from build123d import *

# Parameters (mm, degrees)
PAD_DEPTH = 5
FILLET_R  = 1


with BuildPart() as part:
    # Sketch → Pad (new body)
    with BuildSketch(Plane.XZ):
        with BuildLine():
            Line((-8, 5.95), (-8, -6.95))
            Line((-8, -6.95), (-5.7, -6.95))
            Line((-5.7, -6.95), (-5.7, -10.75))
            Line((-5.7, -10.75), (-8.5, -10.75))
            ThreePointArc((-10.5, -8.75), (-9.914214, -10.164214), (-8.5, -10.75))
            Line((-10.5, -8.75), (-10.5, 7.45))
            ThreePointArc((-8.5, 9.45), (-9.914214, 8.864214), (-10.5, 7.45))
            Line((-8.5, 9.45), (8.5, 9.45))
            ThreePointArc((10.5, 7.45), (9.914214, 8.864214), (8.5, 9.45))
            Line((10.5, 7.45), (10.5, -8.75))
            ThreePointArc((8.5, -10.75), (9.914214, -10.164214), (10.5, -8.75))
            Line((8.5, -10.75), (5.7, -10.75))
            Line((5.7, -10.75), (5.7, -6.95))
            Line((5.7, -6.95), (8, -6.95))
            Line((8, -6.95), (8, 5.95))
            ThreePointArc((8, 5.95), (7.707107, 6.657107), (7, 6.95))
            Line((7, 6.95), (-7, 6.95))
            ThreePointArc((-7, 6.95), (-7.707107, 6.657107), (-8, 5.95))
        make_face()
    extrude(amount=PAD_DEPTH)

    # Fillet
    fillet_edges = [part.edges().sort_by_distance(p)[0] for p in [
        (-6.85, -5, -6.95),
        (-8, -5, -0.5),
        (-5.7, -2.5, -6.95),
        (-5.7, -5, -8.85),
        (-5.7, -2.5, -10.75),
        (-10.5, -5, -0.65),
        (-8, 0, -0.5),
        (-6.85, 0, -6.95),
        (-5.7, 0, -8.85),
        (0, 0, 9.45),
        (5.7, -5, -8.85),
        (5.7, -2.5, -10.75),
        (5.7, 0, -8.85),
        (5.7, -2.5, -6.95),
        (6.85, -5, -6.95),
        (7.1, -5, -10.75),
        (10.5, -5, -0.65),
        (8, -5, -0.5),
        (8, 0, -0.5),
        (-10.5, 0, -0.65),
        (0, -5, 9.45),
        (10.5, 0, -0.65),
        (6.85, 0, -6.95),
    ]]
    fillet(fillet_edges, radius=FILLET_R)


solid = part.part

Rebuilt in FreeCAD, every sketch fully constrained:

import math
import FreeCAD as App
import Part
import Sketcher
from FreeCAD import Vector


def edges_at(feature, points):
    """Names of the edges that pass closest to the given points."""
    edges = feature.Shape.Edges
    near = lambda p: min(range(len(edges)), key=lambda i: edges[i].distToShape(Part.Vertex(*p))[0])
    return sorted({f"Edge{near(p) + 1}" for p in points})

doc = App.newDocument("Part")
body = doc.addObject("PartDesign::Body", "Body")

# Sketch on XZ plane
sketch1 = body.newObject("Sketcher::SketchObject", "Sketch")
sketch1.AttachmentSupport = (doc.getObject("XZ_Plane"), [""])
sketch1.MapMode = "FlatFace"
sketch1.addGeometry(Part.LineSegment(Vector(-8, -6.95, 0), Vector(-8, 5.95, 0)), False)
sketch1.addGeometry(Part.ArcOfCircle(Part.Circle(Vector(-7.000001, 5.950001, 0), Vector(0, 0, 1), 0.999999), math.radians(89.999957), math.radians(180.000043)), False)
sketch1.addGeometry(Part.LineSegment(Vector(-7, 6.95, 0), Vector(7, 6.95, 0)), False)
sketch1.addGeometry(Part.ArcOfCircle(Part.Circle(Vector(7.000001, 5.950001, 0), Vector(0, 0, 1), 0.999999), math.radians(-0.000043), math.radians(90.000043)), False)
sketch1.addGeometry(Part.LineSegment(Vector(8, 5.95, 0), Vector(8, -6.95, 0)), False)
sketch1.addGeometry(Part.LineSegment(Vector(8, -6.95, 0), Vector(5.7, -6.95, 0)), False)
sketch1.addGeometry(Part.LineSegment(Vector(5.7, -6.95, 0), Vector(5.7, -10.75, 0)), False)
sketch1.addGeometry(Part.LineSegment(Vector(5.7, -10.75, 0), Vector(8.5, -10.75, 0)), False)
sketch1.addGeometry(Part.ArcOfCircle(Part.Circle(Vector(8.500001, -8.750001, 0), Vector(0, 0, 1), 1.999999), math.radians(-90.000043), math.radians(0.000043)), False)
sketch1.addGeometry(Part.LineSegment(Vector(10.5, -8.75, 0), Vector(10.5, 7.45, 0)), False)
sketch1.addGeometry(Part.ArcOfCircle(Part.Circle(Vector(8.500001, 7.450001, 0), Vector(0, 0, 1), 1.999999), math.radians(-0.000043), math.radians(90.000043)), False)
sketch1.addGeometry(Part.LineSegment(Vector(8.5, 9.45, 0), Vector(-8.5, 9.45, 0)), False)
sketch1.addGeometry(Part.ArcOfCircle(Part.Circle(Vector(-8.500001, 7.450001, 0), Vector(0, 0, 1), 1.999999), math.radians(89.999957), math.radians(180.000043)), False)
sketch1.addGeometry(Part.LineSegment(Vector(-10.5, 7.45, 0), Vector(-10.5, -8.75, 0)), False)
sketch1.addGeometry(Part.ArcOfCircle(Part.Circle(Vector(-8.500001, -8.750001, 0), Vector(0, 0, 1), 1.999999), math.radians(179.999957), math.radians(270.000043)), False)
sketch1.addGeometry(Part.LineSegment(Vector(-8.5, -10.75, 0), Vector(-5.7, -10.75, 0)), False)
sketch1.addGeometry(Part.LineSegment(Vector(-5.7, -10.75, 0), Vector(-5.7, -6.95, 0)), False)
sketch1.addGeometry(Part.LineSegment(Vector(-5.7, -6.95, 0), Vector(-8, -6.95, 0)), False)
sketch1.addConstraint(Sketcher.Constraint("Tangent", 0, 2, 1, 2))
sketch1.addConstraint(Sketcher.Constraint("Tangent", 1, 1, 2, 1))
sketch1.addConstraint(Sketcher.Constraint("Tangent", 2, 2, 3, 2))
sketch1.addConstraint(Sketcher.Constraint("Tangent", 3, 1, 4, 1))
sketch1.addConstraint(Sketcher.Constraint("Coincident", 4, 2, 5, 1))
sketch1.addConstraint(Sketcher.Constraint("Coincident", 5, 2, 6, 1))
sketch1.addConstraint(Sketcher.Constraint("Coincident", 6, 2, 7, 1))
sketch1.addConstraint(Sketcher.Constraint("Tangent", 7, 2, 8, 1))
sketch1.addConstraint(Sketcher.Constraint("Tangent", 8, 2, 9, 1))
sketch1.addConstraint(Sketcher.Constraint("Tangent", 9, 2, 10, 1))
sketch1.addConstraint(Sketcher.Constraint("Tangent", 10, 2, 11, 1))
sketch1.addConstraint(Sketcher.Constraint("Tangent", 11, 2, 12, 1))
sketch1.addConstraint(Sketcher.Constraint("Tangent", 12, 2, 13, 1))
sketch1.addConstraint(Sketcher.Constraint("Tangent", 13, 2, 14, 1))
sketch1.addConstraint(Sketcher.Constraint("Tangent", 14, 2, 15, 1))
sketch1.addConstraint(Sketcher.Constraint("Coincident", 15, 2, 16, 1))
sketch1.addConstraint(Sketcher.Constraint("Coincident", 16, 2, 17, 1))
sketch1.addConstraint(Sketcher.Constraint("Coincident", 17, 2, 0, 1))
sketch1.addConstraint(Sketcher.Constraint("Vertical", 0))
sketch1.addConstraint(Sketcher.Constraint("Horizontal", 2))
sketch1.addConstraint(Sketcher.Constraint("Vertical", 4))
sketch1.addConstraint(Sketcher.Constraint("Horizontal", 5))
sketch1.addConstraint(Sketcher.Constraint("Vertical", 6))
sketch1.addConstraint(Sketcher.Constraint("Horizontal", 7))
sketch1.addConstraint(Sketcher.Constraint("Vertical", 9))
sketch1.addConstraint(Sketcher.Constraint("Horizontal", 11))
sketch1.addConstraint(Sketcher.Constraint("Vertical", 13))
sketch1.addConstraint(Sketcher.Constraint("Horizontal", 15))
sketch1.addConstraint(Sketcher.Constraint("Vertical", 16))
sketch1.addConstraint(Sketcher.Constraint("Horizontal", 17))
sketch1.addConstraint(Sketcher.Constraint("Equal", 1, 3))
sketch1.addConstraint(Sketcher.Constraint("Equal", 8, 10))
sketch1.addConstraint(Sketcher.Constraint("Equal", 10, 12))
sketch1.addConstraint(Sketcher.Constraint("Equal", 12, 14))
sketch1.addConstraint(Sketcher.Constraint("Symmetric", 8, 3, 14, 3, -2))
sketch1.addConstraint(Sketcher.Constraint("Symmetric", 5, 2, 16, 2, -2))
sketch1.addConstraint(Sketcher.Constraint("Equal", 5, 17))
sketch1.addConstraint(Sketcher.Constraint("Radius", 1, 0.999999))
sketch1.addConstraint(Sketcher.Constraint("Radius", 8, 1.999999))
sketch1.addConstraint(Sketcher.Constraint("DistanceX", 2, 1, 2, 2, 14.0))
sketch1.addConstraint(Sketcher.Constraint("DistanceX", 11, 2, 11, 1, 17.0))
sketch1.addConstraint(Sketcher.Constraint("DistanceX", 5, 2, 5, 1, 2.3))
sketch1.addConstraint(Sketcher.Constraint("DistanceY", 0, 1, 0, 2, 12.9))
sketch1.addConstraint(Sketcher.Constraint("DistanceY", 6, 2, 6, 1, 3.8))
sketch1.addConstraint(Sketcher.Constraint("DistanceY", 9, 1, 9, 2, 16.2))
sketch1.addConstraint(Sketcher.Constraint("DistanceY", -1, 1, 1, 3, 5.950001))
pad1 = body.newObject("PartDesign::Pad", "Pad")
pad1.Profile = sketch1
pad1.Length = 5
doc.recompute()

fillet = body.newObject("PartDesign::Fillet", "Fillet")
fillet.Base = (pad1, edges_at(pad1, [
    (-6.85, -5, -6.95),
    (-8, -5, -0.5),
    (-5.7, -2.5, -6.95),
    (-5.7, -5, -8.85),
    (-5.7, -2.5, -10.75),
    (-10.5, -5, -0.65),
    (-8, 0, -0.5),
    (-6.85, 0, -6.95),
    (-5.7, 0, -8.85),
    (0, 0, 9.45),
    (5.7, -5, -8.85),
    (5.7, -2.5, -10.75),
    (5.7, 0, -8.85),
    (5.7, -2.5, -6.95),
    (6.85, -5, -6.95),
    (7.1, -5, -10.75),
    (10.5, -5, -0.65),
    (8, -5, -0.5),
    (8, 0, -0.5),
    (-10.5, 0, -0.65),
    (0, -5, 9.45),
    (10.5, 0, -0.65),
    (6.85, 0, -6.95),
]))
fillet.Radius = 1

doc.recompute()
